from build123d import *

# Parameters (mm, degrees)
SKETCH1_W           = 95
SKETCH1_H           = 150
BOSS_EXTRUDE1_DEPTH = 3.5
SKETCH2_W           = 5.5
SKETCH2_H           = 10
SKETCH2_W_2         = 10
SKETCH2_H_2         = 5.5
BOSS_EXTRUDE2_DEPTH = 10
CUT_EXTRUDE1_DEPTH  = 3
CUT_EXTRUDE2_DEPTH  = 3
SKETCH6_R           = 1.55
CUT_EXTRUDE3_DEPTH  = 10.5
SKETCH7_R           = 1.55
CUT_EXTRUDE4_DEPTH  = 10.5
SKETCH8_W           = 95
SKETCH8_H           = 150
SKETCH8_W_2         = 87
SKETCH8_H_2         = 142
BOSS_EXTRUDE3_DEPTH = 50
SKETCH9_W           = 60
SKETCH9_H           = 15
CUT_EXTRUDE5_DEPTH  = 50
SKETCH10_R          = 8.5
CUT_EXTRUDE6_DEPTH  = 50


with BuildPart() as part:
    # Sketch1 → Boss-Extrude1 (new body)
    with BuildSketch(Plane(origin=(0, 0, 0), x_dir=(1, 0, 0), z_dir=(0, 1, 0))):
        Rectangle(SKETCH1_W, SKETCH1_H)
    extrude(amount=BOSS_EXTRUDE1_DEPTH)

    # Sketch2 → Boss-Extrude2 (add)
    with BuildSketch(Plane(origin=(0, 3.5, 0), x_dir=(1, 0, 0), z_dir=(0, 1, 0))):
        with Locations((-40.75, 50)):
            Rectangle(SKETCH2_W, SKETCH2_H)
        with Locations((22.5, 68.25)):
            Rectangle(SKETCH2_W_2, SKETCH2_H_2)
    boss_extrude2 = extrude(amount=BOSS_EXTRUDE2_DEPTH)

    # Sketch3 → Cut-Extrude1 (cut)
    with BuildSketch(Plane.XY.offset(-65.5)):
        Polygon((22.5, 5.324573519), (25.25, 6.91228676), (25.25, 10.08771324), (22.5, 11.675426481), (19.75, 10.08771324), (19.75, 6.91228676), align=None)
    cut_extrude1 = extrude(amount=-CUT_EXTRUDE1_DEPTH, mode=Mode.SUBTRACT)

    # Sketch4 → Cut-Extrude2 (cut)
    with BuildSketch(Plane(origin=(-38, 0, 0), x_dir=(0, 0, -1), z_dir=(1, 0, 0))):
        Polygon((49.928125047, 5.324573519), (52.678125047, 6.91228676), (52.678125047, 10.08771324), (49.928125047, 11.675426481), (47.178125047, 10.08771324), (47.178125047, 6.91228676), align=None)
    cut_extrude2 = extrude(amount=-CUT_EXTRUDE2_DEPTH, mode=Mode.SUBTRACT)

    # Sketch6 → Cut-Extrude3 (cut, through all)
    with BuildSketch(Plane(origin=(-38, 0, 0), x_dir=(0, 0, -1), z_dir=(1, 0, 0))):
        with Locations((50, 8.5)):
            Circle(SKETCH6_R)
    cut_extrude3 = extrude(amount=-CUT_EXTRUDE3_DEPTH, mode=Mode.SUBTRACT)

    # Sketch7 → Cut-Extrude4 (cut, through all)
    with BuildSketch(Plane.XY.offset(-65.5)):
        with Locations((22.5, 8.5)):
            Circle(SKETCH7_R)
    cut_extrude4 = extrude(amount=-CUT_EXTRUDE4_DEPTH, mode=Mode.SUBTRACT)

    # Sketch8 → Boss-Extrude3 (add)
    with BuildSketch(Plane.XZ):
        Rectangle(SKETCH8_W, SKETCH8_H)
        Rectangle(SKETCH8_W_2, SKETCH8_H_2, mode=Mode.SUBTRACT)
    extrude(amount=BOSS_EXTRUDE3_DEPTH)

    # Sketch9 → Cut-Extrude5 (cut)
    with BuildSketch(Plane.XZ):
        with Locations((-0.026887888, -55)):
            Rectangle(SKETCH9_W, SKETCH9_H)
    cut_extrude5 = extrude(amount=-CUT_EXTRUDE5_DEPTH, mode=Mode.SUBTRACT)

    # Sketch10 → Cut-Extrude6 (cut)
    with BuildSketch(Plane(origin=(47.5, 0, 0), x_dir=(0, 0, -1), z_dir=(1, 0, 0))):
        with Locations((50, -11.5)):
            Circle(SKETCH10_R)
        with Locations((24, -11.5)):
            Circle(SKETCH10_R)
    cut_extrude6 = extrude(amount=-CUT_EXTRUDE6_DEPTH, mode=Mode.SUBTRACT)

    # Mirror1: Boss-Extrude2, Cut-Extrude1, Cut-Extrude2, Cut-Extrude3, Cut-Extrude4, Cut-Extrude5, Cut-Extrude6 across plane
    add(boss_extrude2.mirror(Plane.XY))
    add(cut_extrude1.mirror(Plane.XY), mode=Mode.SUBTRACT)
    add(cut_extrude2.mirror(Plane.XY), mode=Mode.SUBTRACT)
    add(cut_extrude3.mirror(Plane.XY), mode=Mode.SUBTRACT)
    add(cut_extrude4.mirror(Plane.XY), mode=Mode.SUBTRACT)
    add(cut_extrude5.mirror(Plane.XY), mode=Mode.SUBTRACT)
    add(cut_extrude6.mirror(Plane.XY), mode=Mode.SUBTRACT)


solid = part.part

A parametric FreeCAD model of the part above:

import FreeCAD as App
import Part
import Sketcher

V = App.Vector
Q = App.Units.Quantity

doc = App.newDocument("Part")
params = doc.addObject("Spreadsheet::Sheet", "Params")
for row, (alias, value) in enumerate([
    ("sketch1_width", "95 mm"),
    ("sketch1_height", "150 mm"),
    ("pad1_length", "3.5 mm"),
    ("sketch2_width", "10 mm"),
    ("sketch2_width2", "5.5 mm"),
    ("pad2_length", "10 mm"),
    ("pocket1_length", "3 mm"),
    ("pocket2_length", "3 mm"),
    ("sketch5_diameter", "3.1 mm"),
    ("sketch6_diameter", "3.1 mm"),
    ("sketch7_width", "95 mm"),
    ("sketch7_width2", "87 mm"),
    ("sketch7_height", "150 mm"),
    ("sketch7_height2", "142 mm"),
    ("pad3_length", "50 mm"),
    ("sketch8_width", "60 mm"),
    ("sketch8_height", "15 mm"),
    ("pocket5_length", "50 mm"),
    ("sketch9_diameter", "17 mm"),
    ("pocket6_length", "50 mm"),
], start=1):
    params.set(f"A{row}", alias)
    params.set(f"B{row}", "=" + value)
    params.setAlias(f"B{row}", alias)

body = doc.addObject("PartDesign::Body", "Body")

sketch1 = doc.addObject("Sketcher::SketchObject", "Sketch")
body.addObject(sketch1)
sketch1.AttachmentSupport = (doc.XZ_Plane, [""])
sketch1.MapMode = "FlatFace"
sketch1.addGeometry([
    Part.LineSegment(V(-47.5, -75, 0), V(-47.5, 75, 0)),
    Part.LineSegment(V(-47.5, 75, 0), V(47.5, 75, 0)),
    Part.LineSegment(V(47.5, 75, 0), V(47.5, -75, 0)),
    Part.LineSegment(V(47.5, -75, 0), V(-47.5, -75, 0)),
], False)
sketch1.addConstraint([
    Sketcher.Constraint("Coincident", 0, 2, 1, 1),
    Sketcher.Constraint("Coincident", 1, 2, 2, 1),
    Sketcher.Constraint("Coincident", 2, 2, 3, 1),
    Sketcher.Constraint("Coincident", 3, 2, 0, 1),
    Sketcher.Constraint("Vertical", 0),
    Sketcher.Constraint("Horizontal", 1),
    Sketcher.Constraint("Vertical", 2),
    Sketcher.Constraint("Horizontal", 3),
    Sketcher.Constraint("Symmetric", 0, 2, 2, 2, -1, 1),
    Sketcher.Constraint("DistanceX", 1, 1, 1, 2, Q("95 mm")),
    Sketcher.Constraint("DistanceY", 0, 1, 0, 2, Q("150 mm")),
])
sketch1.setExpression("Constraints[9]", "Params.sketch1_width")
sketch1.setExpression("Constraints[10]", "Params.sketch1_height")
pad1 = doc.addObject("PartDesign::Pad", "Pad")
body.addObject(pad1)
pad1.Profile = sketch1
pad1.setExpression("Length", "Params.pad1_length")
pad1.Reversed = True

sketch2 = doc.addObject("Sketcher::SketchObject", "Sketch001")
body.addObject(sketch2)
sketch2.AttachmentSupport = (doc.XZ_Plane, [""])
sketch2.MapMode = "FlatFace"
sketch2.AttachmentOffset = App.Placement(V(0, 0, -3.5), App.Rotation())
sketch2.addGeometry([
    Part.LineSegment(V(-43.5, -55, 0), V(-43.5, -45, 0)),
    Part.LineSegment(V(-43.5, -45, 0), V(-38, -45, 0)),
    Part.LineSegment(V(-38, -45, 0), V(-38, -55, 0)),
    Part.LineSegment(V(-38, -55, 0), V(-43.5, -55, 0)),
    Part.LineSegment(V(17.5, -71, 0), V(17.5, -65.5, 0)),
    Part.LineSegment(V(17.5, -65.5, 0), V(27.5, -65.5, 0)),
    Part.LineSegment(V(27.5, -65.5, 0), V(27.5, -71, 0)),
    Part.LineSegment(V(27.5, -71, 0), V(17.5, -71, 0)),
], False)
sketch2.addConstraint([
    Sketcher.Constraint("Coincident", 0, 2, 1, 1),
    Sketcher.Constraint("Coincident", 1, 2, 2, 1),
    Sketcher.Constraint("Coincident", 2, 2, 3, 1),
    Sketcher.Constraint("Coincident", 3, 2, 0, 1),
    Sketcher.Constraint("Coincident", 4, 2, 5, 1),
    Sketcher.Constraint("Coincident", 5, 2, 6, 1),
    Sketcher.Constraint("Coincident", 6, 2, 7, 1),
    Sketcher.Constraint("Coincident", 7, 2, 4, 1),
    Sketcher.Constraint("Vertical", 0),
    Sketcher.Constraint("Horizontal", 1),
    Sketcher.Constraint("Vertical", 2),
    Sketcher.Constraint("Horizontal", 3),
    Sketcher.Constraint("Vertical", 4),
    Sketcher.Constraint("Horizontal", 5),
    Sketcher.Constraint("Vertical", 6),
    Sketcher.Constraint("Horizontal", 7),
    Sketcher.Constraint("Equal", 7, 0),
    Sketcher.Constraint("Equal", 3, 4),
    Sketcher.Constraint("DistanceX", 5, 1, 5, 2, Q("10 mm")),
    Sketcher.Constraint("DistanceX", 1, 1, 1, 2, Q("5.5 mm")),
    Sketcher.Constraint("DistanceY", 0, 2, -1, 1, Q("45 mm")),
    Sketcher.Constraint("DistanceX", 1, 2, -1, 1, Q("38 mm")),
    Sketcher.Constraint("DistanceY", 6, 2, -1, 1, Q("71 mm")),
    Sketcher.Constraint("DistanceX", 3, 2, 4, 2, Q("61 mm")),
])
sketch2.setExpression("Constraints[18]", "Params.sketch2_width")
sketch2.setExpression("Constraints[19]", "Params.sketch2_width2")
pad2 = doc.addObject("PartDesign::Pad", "Pad001")
body.addObject(pad2)
pad2.Profile = sketch2
pad2.setExpression("Length", "Params.pad2_length")
pad2.Reversed = True

sketch3 = doc.addObject("Sketcher::SketchObject", "Sketch002")
body.addObject(sketch3)
sketch3.AttachmentSupport = (doc.XY_Plane, [""])
sketch3.MapMode = "FlatFace"
sketch3.AttachmentOffset = App.Placement(V(0, 0, -65.5), App.Rotation())
sketch3.addGeometry([
    Part.LineSegment(V(22.5, 5.324574, 0), V(25.25, 6.912287, 0)),
    Part.LineSegment(V(25.25, 6.912287, 0), V(25.25, 10.087713, 0)),
    Part.LineSegment(V(25.25, 10.087713, 0), V(22.5, 11.675426, 0)),
    Part.LineSegment(V(22.5, 11.675426, 0), V(19.75, 10.087713, 0)),
    Part.LineSegment(V(19.75, 10.087713, 0), V(19.75, 6.912287, 0)),
    Part.LineSegment(V(19.75, 6.912287, 0), V(22.5, 5.324574, 0)),
], False)
sketch3.addConstraint([
    Sketcher.Constraint("Coincident", 0, 2, 1, 1),
    Sketcher.Constraint("Coincident", 1, 2, 2, 1),
    Sketcher.Constraint("Coincident", 2, 2, 3, 1),
    Sketcher.Constraint("Coincident", 3, 2, 4, 1),
    Sketcher.Constraint("Coincident", 4, 2, 5, 1),
    Sketcher.Constraint("Coincident", 5, 2, 0, 1),
    Sketcher.Constraint("Vertical", 1),
    Sketcher.Constraint("Vertical", 4),
    Sketcher.Constraint("Parallel", 0, 3),
    Sketcher.Constraint("Parallel", 2, 5),
    Sketcher.Constraint("Horizontal", 1, 2, 3, 2),
    Sketcher.Constraint("Horizontal", 0, 2, 4, 2),
    Sketcher.Constraint("Vertical", 2, 2, 5, 2),
    Sketcher.Constraint("Angle", 0, Q("30 deg")),
    Sketcher.Constraint("DistanceX", -1, 1, 2, 2, Q("22.5 mm")),
    Sketcher.Constraint("DistanceX", 3, 2, 1, 2, Q("5.5 mm")),
    Sketcher.Constraint("DistanceY", 1, 1, 1, 2, Q("3.175426 mm")),
    Sketcher.Constraint("DistanceY", -1, 1, 0, 2, Q("6.912287 mm")),
])
pocket1 = doc.addObject("PartDesign::Pocket", "Pocket")
body.addObject(pocket1)
pocket1.Profile = sketch3
pocket1.setExpression("Length", "Params.pocket1_length")

sketch4 = doc.addObject("Sketcher::SketchObject", "Sketch003")
body.addObject(sketch4)
sketch4.AttachmentSupport = (doc.YZ_Plane, [""])
sketch4.MapMode = "FlatFace"
sketch4.AttachmentOffset = App.Placement(V(0, 0, -38), App.Rotation())
sketch4.addGeometry([
    Part.LineSegment(V(5.324574, -49.928125, 0), V(6.912287, -52.678125, 0)),
    Part.LineSegment(V(6.912287, -52.678125, 0), V(10.087713, -52.678125, 0)),
    Part.LineSegment(V(10.087713, -52.678125, 0), V(11.675426, -49.928125, 0)),
    Part.LineSegment(V(11.675426, -49.928125, 0), V(10.087713, -47.178125, 0)),
    Part.LineSegment(V(10.087713, -47.178125, 0), V(6.912287, -47.178125, 0)),
    Part.LineSegment(V(6.912287, -47.178125, 0), V(5.324574, -49.928125, 0)),
], False)
sketch4.addConstraint([
    Sketcher.Constraint("Coincident", 0, 2, 1, 1),
    Sketcher.Constraint("Coincident", 1, 2, 2, 1),
    Sketcher.Constraint("Coincident", 2, 2, 3, 1),
    Sketcher.Constraint("Coincident", 3, 2, 4, 1),
    Sketcher.Constraint("Coincident", 4, 2, 5, 1),
    Sketcher.Constraint("Coincident", 5, 2, 0, 1),
    Sketcher.Constraint("Horizontal", 1),
    Sketcher.Constraint("Horizontal", 4),
    Sketcher.Constraint("Parallel", 0, 3),
    Sketcher.Constraint("Parallel", 2, 5),
    Sketcher.Constraint("Horizontal", 2, 2, 5, 2),
    Sketcher.Constraint("Vertical", 1, 2, 3, 2),
    Sketcher.Constraint("Vertical", 0, 2, 4, 2),
    Sketcher.Constraint("Angle", 0, Q("-60 deg")),
    Sketcher.Constraint("DistanceY", 1, 2, 3, 2, Q("5.5 mm")),
    Sketcher.Constraint("DistanceX", 1, 1, 1, 2, Q("3.175426 mm")),
    Sketcher.Constraint("DistanceX", -1, 1, 0, 2, Q("6.912287 mm")),
    Sketcher.Constraint("DistanceY", 0, 2, -1, 1, Q("52.678125 mm")),
])
pocket2 = doc.addObject("PartDesign::Pocket", "Pocket001")
body.addObject(pocket2)
pocket2.Profile = sketch4
pocket2.setExpression("Length", "Params.pocket2_length")

sketch5 = doc.addObject("Sketcher::SketchObject", "Sketch004")
body.addObject(sketch5)
sketch5.AttachmentSupport = (doc.YZ_Plane, [""])
sketch5.MapMode = "FlatFace"
sketch5.AttachmentOffset = App.Placement(V(0, 0, -38), App.Rotation())
sketch5.addGeometry(Part.Circle(V(8.5, -50, 0), V(0, 0, 1), 1.55), False)
sketch5.addConstraint([
    Sketcher.Constraint("Diameter", 0, Q("3.1 mm")),
    Sketcher.Constraint("DistanceY", 0, 3, -1, 1, Q("50 mm")),
    Sketcher.Constraint("DistanceX", -1, 1, 0, 3, Q("8.5 mm")),
])
sketch5.setExpression("Constraints[0]", "Params.sketch5_diameter")
pocket3 = doc.addObject("PartDesign::Pocket", "Pocket002")
body.addObject(pocket3)
pocket3.Profile = sketch5
pocket3.Type = "ThroughAll"

sketch6 = doc.addObject("Sketcher::SketchObject", "Sketch005")
body.addObject(sketch6)
sketch6.AttachmentSupport = (doc.XY_Plane, [""])
sketch6.MapMode = "FlatFace"
sketch6.AttachmentOffset = App.Placement(V(0, 0, -65.5), App.Rotation())
sketch6.addGeometry(Part.Circle(V(22.5, 8.5, 0), V(0, 0, 1), 1.55), False)
sketch6.addConstraint([
    Sketcher.Constraint("Diameter", 0, Q("3.1 mm")),
    Sketcher.Constraint("DistanceX", -1, 1, 0, 3, Q("22.5 mm")),
    Sketcher.Constraint("DistanceY", -1, 1, 0, 3, Q("8.5 mm")),
])
sketch6.setExpression("Constraints[0]", "Params.sketch6_diameter")
pocket4 = doc.addObject("PartDesign::Pocket", "Pocket003")
body.addObject(pocket4)
pocket4.Profile = sketch6
pocket4.Type = "ThroughAll"

sketch7 = doc.addObject("Sketcher::SketchObject", "Sketch006")
body.addObject(sketch7)
sketch7.AttachmentSupport = (doc.XZ_Plane, [""])
sketch7.MapMode = "FlatFace"
sketch7.addGeometry([
    Part.LineSegment(V(-47.5, 75, 0), V(-47.5, -75, 0)),
    Part.LineSegment(V(-47.5, -75, 0), V(47.5, -75, 0)),
    Part.LineSegment(V(47.5, -75, 0), V(47.5, 75, 0)),
    Part.LineSegment(V(47.5, 75, 0), V(-47.5, 75, 0)),
    Part.LineSegment(V(43.5, -71, 0), V(-43.5, -71, 0)),
    Part.LineSegment(V(-43.5, -71, 0), V(-43.5, 71, 0)),
    Part.LineSegment(V(-43.5, 71, 0), V(43.5, 71, 0)),
    Part.LineSegment(V(43.5, 71, 0), V(43.5, -71, 0)),
], False)
sketch7.addConstraint([
    Sketcher.Constraint("Coincident", 0, 2, 1, 1),
    Sketcher.Constraint("Coincident", 1, 2, 2, 1),
    Sketcher.Constraint("Coincident", 2, 2, 3, 1),
    Sketcher.Constraint("Coincident", 3, 2, 0, 1),
    Sketcher.Constraint("Coincident", 4, 2, 5, 1),
    Sketcher.Constraint("Coincident", 5, 2, 6, 1),
    Sketcher.Constraint("Coincident", 6, 2, 7, 1),
    Sketcher.Constraint("Coincident", 7, 2, 4, 1),
    Sketcher.Constraint("Vertical", 0),
    Sketcher.Constraint("Horizontal", 1),
    Sketcher.Constraint("Vertical", 2),
    Sketcher.Constraint("Horizontal", 3),
    Sketcher.Constraint("Horizontal", 4),
    Sketcher.Constraint("Vertical", 5),
    Sketcher.Constraint("Horizontal", 6),
    Sketcher.Constraint("Vertical", 7),
    Sketcher.Constraint("Symmetric", 0, 2, 2, 2, -1, 1),
    Sketcher.Constraint("Symmetric", 4, 2, 6, 2, -1, 1),
    Sketcher.Constraint("DistanceX", 1, 1, 1, 2, Q("95 mm")),
    Sketcher.Constraint("DistanceX", 4, 2, 4, 1, Q("87 mm")),
    Sketcher.Constraint("DistanceY", 0, 2, 0, 1, Q("150 mm")),
    Sketcher.Constraint("DistanceY", 5, 1, 5, 2, Q("142 mm")),
])
sketch7.setExpression("Constraints[18]", "Params.sketch7_width")
sketch7.setExpression("Constraints[19]", "Params.sketch7_width2")
sketch7.setExpression("Constraints[20]", "Params.sketch7_height")
sketch7.setExpression("Constraints[21]", "Params.sketch7_height2")
pad3 = doc.addObject("PartDesign::Pad", "Pad002")
body.addObject(pad3)
pad3.Profile = sketch7
pad3.setExpression("Length", "Params.pad3_length")

sketch8 = doc.addObject("Sketcher::SketchObject", "Sketch007")
body.addObject(sketch8)
sketch8.AttachmentSupport = (doc.XZ_Plane, [""])
sketch8.MapMode = "FlatFace"
sketch8.addGeometry([
    Part.LineSegment(V(-30.026888, -47.5, 0), V(-30.026888, -62.5, 0)),
    Part.LineSegment(V(-30.026888, -62.5, 0), V(29.973112, -62.5, 0)),
    Part.LineSegment(V(29.973112, -62.5, 0), V(29.973112, -47.5, 0)),
    Part.LineSegment(V(29.973112, -47.5, 0), V(-30.026888, -47.5, 0)),
], False)
sketch8.addConstraint([
    Sketcher.Constraint("Coincident", 0, 2, 1, 1),
    Sketcher.Constraint("Coincident", 1, 2, 2, 1),
    Sketcher.Constraint("Coincident", 2, 2, 3, 1),
    Sketcher.Constraint("Coincident", 3, 2, 0, 1),
    Sketcher.Constraint("Vertical", 0),
    Sketcher.Constraint("Horizontal", 1),
    Sketcher.Constraint("Vertical", 2),
    Sketcher.Constraint("Horizontal", 3),
    Sketcher.Constraint("DistanceX", 1, 1, 1, 2, Q("60 mm")),
    Sketcher.Constraint("DistanceY", 0, 2, 0, 1, Q("15 mm")),
    Sketcher.Constraint("DistanceY", 0, 2, -1, 1, Q("62.5 mm")),
    Sketcher.Constraint("DistanceX", 0, 2, -1, 1, Q("30.026888 mm")),
])
sketch8.setExpression("Constraints[8]", "Params.sketch8_width")
sketch8.setExpression("Constraints[9]", "Params.sketch8_height")
pocket5 = doc.addObject("PartDesign::Pocket", "Pocket004")
body.addObject(pocket5)
pocket5.Profile = sketch8
pocket5.setExpression("Length", "Params.pocket5_length")

sketch9 = doc.addObject("Sketcher::SketchObject", "Sketch008")
body.addObject(sketch9)
sketch9.AttachmentSupport = (doc.YZ_Plane, [""])
sketch9.MapMode = "FlatFace"
sketch9.AttachmentOffset = App.Placement(V(0, 0, 47.5), App.Rotation())
sketch9.addGeometry([
    Part.Circle(V(-11.5, -50, 0), V(0, 0, 1), 8.5),
    Part.Circle(V(-11.5, -24, 0), V(0, 0, 1), 8.5),
], False)
sketch9.addConstraint([
    Sketcher.Constraint("Equal", 0, 1),
    Sketcher.Constraint("Vertical", 0, 3, 1, 3),
    Sketcher.Constraint("Diameter", 0, Q("17 mm")),
    Sketcher.Constraint("DistanceY", 0, 3, -1, 1, Q("50 mm")),
    Sketcher.Constraint("DistanceY", 1, 3, -1, 1, Q("24 mm")),
    Sketcher.Constraint("DistanceX", 0, 3, -1, 1, Q("11.5 mm")),
])
sketch9.setExpression("Constraints[2]", "Params.sketch9_diameter")
pocket6 = doc.addObject("PartDesign::Pocket", "Pocket005")
body.addObject(pocket6)
pocket6.Profile = sketch9
pocket6.setExpression("Length", "Params.pocket6_length")
doc.recompute()

mirrored = doc.addObject("PartDesign::Mirrored", "Mirrored")
body.addObject(mirrored)
mirrored.Originals = [pad2, pocket1, pocket2, pocket3, pocket4, pocket5, pocket6]
mirrored.MirrorPlane = (doc.XY_Plane, [""])
body.Tip = mirrored

doc.recompute()
